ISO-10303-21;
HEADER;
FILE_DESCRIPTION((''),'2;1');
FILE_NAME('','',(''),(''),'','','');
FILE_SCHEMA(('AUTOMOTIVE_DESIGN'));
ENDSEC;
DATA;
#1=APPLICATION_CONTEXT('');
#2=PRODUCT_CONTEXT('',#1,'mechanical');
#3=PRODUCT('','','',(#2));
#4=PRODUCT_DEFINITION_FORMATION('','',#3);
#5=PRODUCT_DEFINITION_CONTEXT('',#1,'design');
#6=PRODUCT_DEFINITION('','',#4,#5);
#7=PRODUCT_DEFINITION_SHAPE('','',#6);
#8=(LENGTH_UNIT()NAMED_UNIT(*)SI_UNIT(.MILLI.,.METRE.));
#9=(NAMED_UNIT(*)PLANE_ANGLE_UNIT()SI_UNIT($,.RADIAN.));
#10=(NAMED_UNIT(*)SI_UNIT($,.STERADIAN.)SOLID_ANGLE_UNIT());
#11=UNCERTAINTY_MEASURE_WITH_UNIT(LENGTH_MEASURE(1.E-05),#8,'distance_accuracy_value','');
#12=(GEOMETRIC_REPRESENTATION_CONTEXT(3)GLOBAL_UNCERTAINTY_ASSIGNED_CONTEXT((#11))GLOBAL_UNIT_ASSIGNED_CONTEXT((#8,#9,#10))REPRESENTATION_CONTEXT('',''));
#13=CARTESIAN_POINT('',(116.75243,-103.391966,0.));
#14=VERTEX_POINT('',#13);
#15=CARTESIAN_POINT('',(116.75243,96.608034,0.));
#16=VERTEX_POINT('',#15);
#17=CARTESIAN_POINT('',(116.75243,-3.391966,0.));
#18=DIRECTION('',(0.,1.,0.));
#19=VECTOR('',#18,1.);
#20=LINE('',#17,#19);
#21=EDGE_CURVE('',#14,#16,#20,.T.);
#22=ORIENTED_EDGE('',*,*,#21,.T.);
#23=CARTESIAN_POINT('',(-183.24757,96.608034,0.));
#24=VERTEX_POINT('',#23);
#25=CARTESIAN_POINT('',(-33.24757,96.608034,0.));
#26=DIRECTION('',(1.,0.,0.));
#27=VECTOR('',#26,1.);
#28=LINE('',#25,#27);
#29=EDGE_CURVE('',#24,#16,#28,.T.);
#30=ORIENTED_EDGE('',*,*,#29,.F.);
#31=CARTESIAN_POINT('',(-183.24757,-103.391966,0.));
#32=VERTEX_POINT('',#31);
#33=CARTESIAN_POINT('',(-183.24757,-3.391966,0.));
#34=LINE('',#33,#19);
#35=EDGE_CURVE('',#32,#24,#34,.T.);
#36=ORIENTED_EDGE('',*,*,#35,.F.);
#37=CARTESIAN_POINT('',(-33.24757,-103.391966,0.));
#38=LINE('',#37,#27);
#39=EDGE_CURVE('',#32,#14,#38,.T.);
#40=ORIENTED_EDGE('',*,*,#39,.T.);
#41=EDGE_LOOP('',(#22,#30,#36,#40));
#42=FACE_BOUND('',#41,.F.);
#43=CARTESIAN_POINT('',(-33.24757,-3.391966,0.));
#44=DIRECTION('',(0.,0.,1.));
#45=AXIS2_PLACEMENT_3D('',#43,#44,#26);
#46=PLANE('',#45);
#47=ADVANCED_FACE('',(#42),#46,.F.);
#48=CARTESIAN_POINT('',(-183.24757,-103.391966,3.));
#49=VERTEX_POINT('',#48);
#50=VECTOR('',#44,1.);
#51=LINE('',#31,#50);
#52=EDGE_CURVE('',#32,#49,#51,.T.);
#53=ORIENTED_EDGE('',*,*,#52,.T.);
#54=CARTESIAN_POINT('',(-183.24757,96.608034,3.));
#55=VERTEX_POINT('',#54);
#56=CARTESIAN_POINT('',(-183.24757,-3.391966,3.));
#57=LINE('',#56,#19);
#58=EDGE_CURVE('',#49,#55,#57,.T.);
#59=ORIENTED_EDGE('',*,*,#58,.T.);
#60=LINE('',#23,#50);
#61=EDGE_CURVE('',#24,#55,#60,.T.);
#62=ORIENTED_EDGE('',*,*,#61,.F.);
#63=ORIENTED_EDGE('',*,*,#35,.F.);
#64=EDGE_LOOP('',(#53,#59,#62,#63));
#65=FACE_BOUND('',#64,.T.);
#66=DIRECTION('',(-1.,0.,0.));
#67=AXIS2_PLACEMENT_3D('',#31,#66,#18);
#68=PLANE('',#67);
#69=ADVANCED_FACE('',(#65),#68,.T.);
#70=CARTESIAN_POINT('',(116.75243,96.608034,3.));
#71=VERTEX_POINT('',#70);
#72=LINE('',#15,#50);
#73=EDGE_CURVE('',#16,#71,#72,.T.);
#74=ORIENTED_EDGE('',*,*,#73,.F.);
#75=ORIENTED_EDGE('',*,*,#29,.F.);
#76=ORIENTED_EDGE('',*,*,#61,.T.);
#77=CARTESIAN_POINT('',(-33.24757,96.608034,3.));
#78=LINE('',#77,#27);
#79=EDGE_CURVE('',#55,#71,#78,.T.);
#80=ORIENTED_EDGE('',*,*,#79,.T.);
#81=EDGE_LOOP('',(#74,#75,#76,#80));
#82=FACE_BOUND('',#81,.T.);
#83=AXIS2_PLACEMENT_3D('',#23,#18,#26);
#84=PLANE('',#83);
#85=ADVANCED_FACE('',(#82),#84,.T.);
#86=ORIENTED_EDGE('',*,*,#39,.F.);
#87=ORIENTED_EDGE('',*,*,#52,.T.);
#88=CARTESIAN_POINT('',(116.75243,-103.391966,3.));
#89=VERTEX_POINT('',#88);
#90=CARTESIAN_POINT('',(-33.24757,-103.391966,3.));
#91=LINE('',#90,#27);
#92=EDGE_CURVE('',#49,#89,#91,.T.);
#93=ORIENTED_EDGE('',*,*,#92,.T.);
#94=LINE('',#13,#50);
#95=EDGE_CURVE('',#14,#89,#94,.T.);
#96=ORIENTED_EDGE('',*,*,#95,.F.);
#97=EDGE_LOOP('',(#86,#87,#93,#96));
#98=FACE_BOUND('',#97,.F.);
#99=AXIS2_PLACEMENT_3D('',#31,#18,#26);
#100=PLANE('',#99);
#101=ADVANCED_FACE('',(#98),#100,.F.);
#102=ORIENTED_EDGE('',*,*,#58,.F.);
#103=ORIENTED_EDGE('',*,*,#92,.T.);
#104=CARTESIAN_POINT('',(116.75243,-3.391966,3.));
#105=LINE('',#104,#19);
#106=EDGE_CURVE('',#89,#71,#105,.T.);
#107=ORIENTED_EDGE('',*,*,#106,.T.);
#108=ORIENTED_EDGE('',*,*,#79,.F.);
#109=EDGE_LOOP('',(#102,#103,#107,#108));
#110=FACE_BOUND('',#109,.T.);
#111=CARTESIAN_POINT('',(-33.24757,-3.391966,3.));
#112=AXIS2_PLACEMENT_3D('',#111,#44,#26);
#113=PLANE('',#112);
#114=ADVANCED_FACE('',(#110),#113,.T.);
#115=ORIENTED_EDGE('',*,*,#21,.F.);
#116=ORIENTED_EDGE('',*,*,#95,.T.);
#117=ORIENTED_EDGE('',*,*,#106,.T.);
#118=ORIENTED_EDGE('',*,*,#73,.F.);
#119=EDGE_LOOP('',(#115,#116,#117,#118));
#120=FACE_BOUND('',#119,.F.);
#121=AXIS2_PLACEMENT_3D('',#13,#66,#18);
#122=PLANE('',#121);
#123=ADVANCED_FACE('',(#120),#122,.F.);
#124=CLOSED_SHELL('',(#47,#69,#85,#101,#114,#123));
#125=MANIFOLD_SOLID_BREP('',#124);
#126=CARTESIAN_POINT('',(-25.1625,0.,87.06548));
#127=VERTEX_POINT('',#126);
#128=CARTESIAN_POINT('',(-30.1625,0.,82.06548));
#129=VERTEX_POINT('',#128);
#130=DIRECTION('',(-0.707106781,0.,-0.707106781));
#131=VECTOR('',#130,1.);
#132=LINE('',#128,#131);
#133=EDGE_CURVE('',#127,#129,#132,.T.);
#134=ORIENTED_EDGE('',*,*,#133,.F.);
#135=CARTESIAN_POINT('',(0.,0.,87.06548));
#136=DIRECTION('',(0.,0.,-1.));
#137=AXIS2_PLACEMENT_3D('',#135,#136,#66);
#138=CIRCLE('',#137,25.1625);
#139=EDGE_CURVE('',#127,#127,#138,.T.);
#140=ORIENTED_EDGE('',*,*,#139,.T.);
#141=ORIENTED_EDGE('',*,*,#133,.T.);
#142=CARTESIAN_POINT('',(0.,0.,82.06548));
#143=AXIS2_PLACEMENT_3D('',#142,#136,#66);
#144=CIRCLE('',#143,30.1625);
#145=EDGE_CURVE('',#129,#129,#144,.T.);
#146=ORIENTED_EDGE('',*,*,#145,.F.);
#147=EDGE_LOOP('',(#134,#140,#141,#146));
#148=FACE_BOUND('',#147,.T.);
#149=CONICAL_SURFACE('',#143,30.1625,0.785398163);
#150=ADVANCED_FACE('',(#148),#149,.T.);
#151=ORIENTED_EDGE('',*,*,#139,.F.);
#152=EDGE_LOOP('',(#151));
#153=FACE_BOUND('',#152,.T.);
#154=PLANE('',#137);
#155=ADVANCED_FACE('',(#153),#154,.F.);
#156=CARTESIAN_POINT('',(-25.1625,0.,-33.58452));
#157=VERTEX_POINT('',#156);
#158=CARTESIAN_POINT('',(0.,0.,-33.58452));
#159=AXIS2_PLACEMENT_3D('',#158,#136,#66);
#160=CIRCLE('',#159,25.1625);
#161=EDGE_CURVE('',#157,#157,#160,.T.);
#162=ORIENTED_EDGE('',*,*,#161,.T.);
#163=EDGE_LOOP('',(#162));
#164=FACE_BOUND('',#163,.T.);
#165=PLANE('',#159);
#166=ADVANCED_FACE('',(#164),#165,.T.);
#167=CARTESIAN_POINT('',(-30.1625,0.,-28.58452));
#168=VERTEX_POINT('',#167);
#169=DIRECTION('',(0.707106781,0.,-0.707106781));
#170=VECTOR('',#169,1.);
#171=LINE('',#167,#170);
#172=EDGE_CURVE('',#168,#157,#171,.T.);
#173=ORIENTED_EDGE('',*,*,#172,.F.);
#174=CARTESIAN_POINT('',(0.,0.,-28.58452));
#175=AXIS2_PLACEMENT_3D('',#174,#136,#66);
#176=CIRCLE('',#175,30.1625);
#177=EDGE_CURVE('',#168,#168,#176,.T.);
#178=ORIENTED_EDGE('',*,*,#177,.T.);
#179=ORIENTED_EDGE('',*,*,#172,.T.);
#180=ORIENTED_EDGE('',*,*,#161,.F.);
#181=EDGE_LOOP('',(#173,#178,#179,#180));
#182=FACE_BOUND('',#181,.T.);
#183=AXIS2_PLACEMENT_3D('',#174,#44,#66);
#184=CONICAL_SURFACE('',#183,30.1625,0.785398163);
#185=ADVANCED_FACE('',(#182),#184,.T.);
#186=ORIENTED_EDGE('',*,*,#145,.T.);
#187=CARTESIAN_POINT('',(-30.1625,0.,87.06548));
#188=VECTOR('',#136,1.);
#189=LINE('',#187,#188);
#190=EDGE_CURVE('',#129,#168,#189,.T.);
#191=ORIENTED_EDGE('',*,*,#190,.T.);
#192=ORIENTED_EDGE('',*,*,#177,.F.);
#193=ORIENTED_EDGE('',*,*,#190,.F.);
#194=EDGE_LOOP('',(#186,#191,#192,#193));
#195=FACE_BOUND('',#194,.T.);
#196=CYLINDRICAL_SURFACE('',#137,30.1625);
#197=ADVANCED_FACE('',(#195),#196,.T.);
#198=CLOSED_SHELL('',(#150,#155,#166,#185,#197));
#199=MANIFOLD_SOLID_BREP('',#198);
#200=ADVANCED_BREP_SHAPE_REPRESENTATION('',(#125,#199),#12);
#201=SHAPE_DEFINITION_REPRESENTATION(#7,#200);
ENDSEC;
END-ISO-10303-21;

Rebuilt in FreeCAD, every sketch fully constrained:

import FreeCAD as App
import Part
import Sketcher

V = App.Vector
Q = App.Units.Quantity


def edges_at(feature, points):
    """Names of the edges that pass closest to the given points."""
    edges = feature.Shape.Edges
    near = lambda p: min(range(len(edges)), key=lambda i: edges[i].distToShape(Part.Vertex(*p))[0])
    return sorted({f"Edge{near(p) + 1}" for p in points})


def add_polygon(sketch, points):
    """Adds a closed chain of lines whose ends are joined by coincident constraints."""
    first, n = sketch.GeometryCount, len(points)
    for a, b in zip(points, points[1:] + points[:1]):
        sketch.addGeometry(Part.LineSegment(App.Vector(*a, 0), App.Vector(*b, 0)), False)
    for i in range(n):
        sketch.addConstraint(Sketcher.Constraint("Coincident", first + i, 2, first + (i + 1) % n, 1))

doc = App.newDocument("Part")
params = doc.addObject("Spreadsheet::Sheet", "Params")
for row, (alias, value) in enumerate([
    ("sketch1_height", "120.65 mm"),
    ("revolution_angle", "360 deg"),
    ("chamfer_size", "5 mm"),
    ("sketch2_width", "300 mm"),
    ("sketch2_height", "200 mm"),
    ("pad1_length", "3 mm"),
], start=1):
    params.set(f"A{row}", alias)
    params.set(f"B{row}", "=" + value)
    params.setAlias(f"B{row}", alias)

body = doc.addObject("PartDesign::Body", "Body")

# Sketch on XZ plane
sketch1 = body.newObject("Sketcher::SketchObject", "Sketch")
sketch1.AttachmentSupport = (doc.getObject("XZ_Plane"), [""])
sketch1.MapMode = "FlatFace"
add_polygon(sketch1, [(0, -33.58452), (0, 87.06548), (-30.1625, 87.06548), (-30.1625, -33.58452)])  # lines 0-3
sketch1.addConstraint([
    Sketcher.Constraint("Vertical", 0),
    Sketcher.Constraint("Horizontal", 1),
    Sketcher.Constraint("Vertical", 2),
    Sketcher.Constraint("Horizontal", 3),
    Sketcher.Constraint("PointOnObject", 0, 2, -2),
    Sketcher.Constraint("DistanceY", 0, 1, 0, 2, Q("120.65 mm")),
    Sketcher.Constraint("DistanceX", 1, 2, 1, 1, Q("30.1625 mm")),
    Sketcher.Constraint("DistanceY", -1, 1, 0, 2, Q("87.06548 mm")),
])
sketch1.setExpression("Constraints[9]", "Params.sketch1_height")
revolution = body.newObject("PartDesign::Revolution", "Revolution")
revolution.Profile = sketch1
revolution.ReferenceAxis = (sketch1, ["V_Axis"])
revolution.setExpression("Angle", "Params.revolution_angle")
doc.recompute()

chamfer = body.newObject("PartDesign::Chamfer", "Chamfer")
chamfer.Base = (revolution, edges_at(revolution, [(30.163, 0, 87.065), (30.163, 0, -33.585)]))
chamfer.setExpression("Size", "Params.chamfer_size")
body2 = doc.addObject("PartDesign::Body", "Body001")

# Sketch on XY plane
sketch2 = body2.newObject("Sketcher::SketchObject", "Sketch001")
sketch2.AttachmentSupport = (doc.getObject("XY_Plane001"), [""])
sketch2.MapMode = "FlatFace"
add_polygon(sketch2, [(-183.24757, 96.608034), (-183.24757, -103.391966), (116.75243, -103.391966), (116.75243, 96.608034)])  # lines 0-3
sketch2.addConstraint([
    Sketcher.Constraint("Vertical", 0),
    Sketcher.Constraint("Horizontal", 1),
    Sketcher.Constraint("Vertical", 2),
    Sketcher.Constraint("Horizontal", 3),
    Sketcher.Constraint("DistanceX", 1, 1, 1, 2, Q("300 mm")),
    Sketcher.Constraint("DistanceY", 0, 2, 0, 1, Q("200 mm")),
    Sketcher.Constraint("DistanceX", 0, 2, -1, 1, Q("183.24757 mm")),
    Sketcher.Constraint("DistanceY", 0, 2, -1, 1, Q("103.391966 mm")),
])
sketch2.setExpression("Constraints[8]", "Params.sketch2_width")
sketch2.setExpression("Constraints[9]", "Params.sketch2_height")
pad1 = body2.newObject("PartDesign::Pad", "Pad")
pad1.Profile = sketch2
pad1.setExpression("Length", "Params.pad1_length")

doc.recompute()
